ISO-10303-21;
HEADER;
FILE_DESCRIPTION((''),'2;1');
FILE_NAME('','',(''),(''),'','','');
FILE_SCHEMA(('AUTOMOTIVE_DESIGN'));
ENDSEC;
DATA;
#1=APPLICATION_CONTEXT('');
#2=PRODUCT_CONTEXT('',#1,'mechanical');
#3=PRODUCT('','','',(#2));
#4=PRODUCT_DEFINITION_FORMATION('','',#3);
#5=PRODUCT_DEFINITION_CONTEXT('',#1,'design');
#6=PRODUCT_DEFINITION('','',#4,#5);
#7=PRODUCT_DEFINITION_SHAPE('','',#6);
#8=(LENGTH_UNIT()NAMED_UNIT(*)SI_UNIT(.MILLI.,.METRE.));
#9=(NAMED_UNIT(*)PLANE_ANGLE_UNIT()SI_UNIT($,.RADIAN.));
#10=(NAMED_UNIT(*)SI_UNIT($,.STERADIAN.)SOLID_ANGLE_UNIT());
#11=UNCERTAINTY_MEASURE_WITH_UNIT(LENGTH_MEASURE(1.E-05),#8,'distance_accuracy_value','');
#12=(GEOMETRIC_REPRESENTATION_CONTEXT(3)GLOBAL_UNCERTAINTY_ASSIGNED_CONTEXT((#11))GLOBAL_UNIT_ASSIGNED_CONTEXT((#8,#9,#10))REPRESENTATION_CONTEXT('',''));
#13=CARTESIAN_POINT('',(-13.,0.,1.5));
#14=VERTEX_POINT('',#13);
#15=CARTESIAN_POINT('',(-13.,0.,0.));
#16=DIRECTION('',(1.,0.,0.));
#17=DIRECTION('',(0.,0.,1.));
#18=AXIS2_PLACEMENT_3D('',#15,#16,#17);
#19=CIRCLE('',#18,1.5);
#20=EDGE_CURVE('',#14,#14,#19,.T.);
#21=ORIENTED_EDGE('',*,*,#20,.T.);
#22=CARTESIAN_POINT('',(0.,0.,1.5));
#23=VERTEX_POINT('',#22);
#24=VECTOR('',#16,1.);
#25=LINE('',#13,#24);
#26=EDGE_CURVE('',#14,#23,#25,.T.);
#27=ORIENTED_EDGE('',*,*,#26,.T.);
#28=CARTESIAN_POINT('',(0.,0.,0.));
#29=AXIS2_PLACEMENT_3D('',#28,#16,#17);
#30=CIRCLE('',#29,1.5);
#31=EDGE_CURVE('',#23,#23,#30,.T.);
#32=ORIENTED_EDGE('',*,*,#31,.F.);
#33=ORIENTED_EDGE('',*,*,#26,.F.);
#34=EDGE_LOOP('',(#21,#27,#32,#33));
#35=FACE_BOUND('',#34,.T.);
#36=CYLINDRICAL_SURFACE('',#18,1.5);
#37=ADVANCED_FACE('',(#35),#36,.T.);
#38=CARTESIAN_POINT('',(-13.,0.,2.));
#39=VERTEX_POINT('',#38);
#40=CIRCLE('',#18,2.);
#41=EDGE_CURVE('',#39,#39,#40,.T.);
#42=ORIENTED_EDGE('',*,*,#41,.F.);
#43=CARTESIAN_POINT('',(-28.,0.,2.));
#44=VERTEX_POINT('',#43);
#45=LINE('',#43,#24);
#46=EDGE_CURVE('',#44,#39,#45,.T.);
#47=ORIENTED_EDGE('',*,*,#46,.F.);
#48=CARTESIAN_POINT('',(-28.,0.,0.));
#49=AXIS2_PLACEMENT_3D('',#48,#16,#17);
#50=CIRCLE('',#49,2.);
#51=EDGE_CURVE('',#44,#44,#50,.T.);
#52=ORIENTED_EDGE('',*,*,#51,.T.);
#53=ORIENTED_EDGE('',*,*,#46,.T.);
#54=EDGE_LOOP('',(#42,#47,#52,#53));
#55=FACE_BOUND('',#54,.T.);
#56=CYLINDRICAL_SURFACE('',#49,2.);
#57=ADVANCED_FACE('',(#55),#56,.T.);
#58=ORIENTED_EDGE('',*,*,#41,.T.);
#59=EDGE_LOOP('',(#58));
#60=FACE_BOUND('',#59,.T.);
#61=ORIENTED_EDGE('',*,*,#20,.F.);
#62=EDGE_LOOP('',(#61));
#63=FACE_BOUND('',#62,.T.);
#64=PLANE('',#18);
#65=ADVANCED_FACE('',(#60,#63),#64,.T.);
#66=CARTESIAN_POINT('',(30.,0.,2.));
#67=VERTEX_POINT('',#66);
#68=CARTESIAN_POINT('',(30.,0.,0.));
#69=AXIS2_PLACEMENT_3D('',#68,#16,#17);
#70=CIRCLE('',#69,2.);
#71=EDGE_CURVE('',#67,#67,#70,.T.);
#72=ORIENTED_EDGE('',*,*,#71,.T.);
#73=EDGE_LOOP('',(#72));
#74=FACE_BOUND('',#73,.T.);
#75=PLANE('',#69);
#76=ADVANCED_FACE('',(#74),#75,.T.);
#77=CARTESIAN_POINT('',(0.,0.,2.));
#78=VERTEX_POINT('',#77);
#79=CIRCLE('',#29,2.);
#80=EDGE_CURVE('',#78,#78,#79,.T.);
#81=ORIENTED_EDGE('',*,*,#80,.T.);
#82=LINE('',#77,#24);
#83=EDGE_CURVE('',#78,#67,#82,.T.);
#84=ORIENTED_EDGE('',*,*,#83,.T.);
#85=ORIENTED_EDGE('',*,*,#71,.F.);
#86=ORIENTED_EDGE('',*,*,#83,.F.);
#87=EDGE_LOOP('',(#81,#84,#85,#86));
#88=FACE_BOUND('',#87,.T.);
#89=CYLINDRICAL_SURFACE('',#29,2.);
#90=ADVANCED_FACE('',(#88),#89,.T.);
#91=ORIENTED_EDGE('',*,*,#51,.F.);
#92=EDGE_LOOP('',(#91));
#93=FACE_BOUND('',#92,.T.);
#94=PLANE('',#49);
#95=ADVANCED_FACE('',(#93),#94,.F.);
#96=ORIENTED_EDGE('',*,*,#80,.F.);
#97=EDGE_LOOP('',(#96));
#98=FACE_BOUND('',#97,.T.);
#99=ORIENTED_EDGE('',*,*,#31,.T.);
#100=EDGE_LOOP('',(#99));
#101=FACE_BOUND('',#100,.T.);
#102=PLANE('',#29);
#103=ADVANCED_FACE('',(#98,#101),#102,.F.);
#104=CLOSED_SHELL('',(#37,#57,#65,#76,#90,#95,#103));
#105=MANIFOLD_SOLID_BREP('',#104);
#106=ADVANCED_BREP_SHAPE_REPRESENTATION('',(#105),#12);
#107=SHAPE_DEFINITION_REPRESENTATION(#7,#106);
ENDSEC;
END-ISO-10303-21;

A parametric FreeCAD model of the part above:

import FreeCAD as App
import Part
import Sketcher

V = App.Vector
Q = App.Units.Quantity


def add_polygon(sketch, points):
    """Adds a closed chain of lines whose ends are joined by coincident constraints."""
    first, n = sketch.GeometryCount, len(points)
    for a, b in zip(points, points[1:] + points[:1]):
        sketch.addGeometry(Part.LineSegment(App.Vector(*a, 0), App.Vector(*b, 0)), False)
    for i in range(n):
        sketch.addConstraint(Sketcher.Constraint("Coincident", first + i, 2, first + (i + 1) % n, 1))

doc = App.newDocument("Part")
body = doc.addObject("PartDesign::Body", "Body")

# Sketch on XZ plane
sketch1 = body.newObject("Sketcher::SketchObject", "Sketch")
sketch1.AttachmentSupport = (doc.getObject("XZ_Plane"), [""])
sketch1.MapMode = "FlatFace"
add_polygon(sketch1, [(-28, 2), (-13, 2), (-13, 1.5), (0, 1.5), (0, 2), (30, 2), (30, 0), (-28, 0)])  # lines 0-7
sketch1.addConstraint([
    Sketcher.Constraint("Horizontal", 0),
    Sketcher.Constraint("Vertical", 1),
    Sketcher.Constraint("Horizontal", 2),
    Sketcher.Constraint("Vertical", 3),
    Sketcher.Constraint("Horizontal", 4),
    Sketcher.Constraint("Vertical", 5),
    Sketcher.Constraint("Horizontal", 6),
    Sketcher.Constraint("Vertical", 7),
    Sketcher.Constraint("PointOnObject", 2, 2, -2),
    Sketcher.Constraint("PointOnObject", 5, 2, -1),
    Sketcher.Constraint("Horizontal", 0, 2, 3, 2),
    Sketcher.Constraint("DistanceX", 0, 1, 0, 2, Q("15 mm")),
    Sketcher.Constraint("DistanceX", 4, 1, 4, 2, Q("30 mm")),
    Sketcher.Constraint("DistanceY", 5, 2, 5, 1, Q("2 mm")),
    Sketcher.Constraint("DistanceY", 1, 2, 1, 1, Q("0.5 mm")),
    Sketcher.Constraint("DistanceX", 6, 2, -1, 1, Q("28 mm")),
])
revolution = body.newObject("PartDesign::Revolution", "Revolution")
revolution.Profile = sketch1
revolution.ReferenceAxis = (sketch1, ["H_Axis"])
revolution.Angle = 360

doc.recompute()
